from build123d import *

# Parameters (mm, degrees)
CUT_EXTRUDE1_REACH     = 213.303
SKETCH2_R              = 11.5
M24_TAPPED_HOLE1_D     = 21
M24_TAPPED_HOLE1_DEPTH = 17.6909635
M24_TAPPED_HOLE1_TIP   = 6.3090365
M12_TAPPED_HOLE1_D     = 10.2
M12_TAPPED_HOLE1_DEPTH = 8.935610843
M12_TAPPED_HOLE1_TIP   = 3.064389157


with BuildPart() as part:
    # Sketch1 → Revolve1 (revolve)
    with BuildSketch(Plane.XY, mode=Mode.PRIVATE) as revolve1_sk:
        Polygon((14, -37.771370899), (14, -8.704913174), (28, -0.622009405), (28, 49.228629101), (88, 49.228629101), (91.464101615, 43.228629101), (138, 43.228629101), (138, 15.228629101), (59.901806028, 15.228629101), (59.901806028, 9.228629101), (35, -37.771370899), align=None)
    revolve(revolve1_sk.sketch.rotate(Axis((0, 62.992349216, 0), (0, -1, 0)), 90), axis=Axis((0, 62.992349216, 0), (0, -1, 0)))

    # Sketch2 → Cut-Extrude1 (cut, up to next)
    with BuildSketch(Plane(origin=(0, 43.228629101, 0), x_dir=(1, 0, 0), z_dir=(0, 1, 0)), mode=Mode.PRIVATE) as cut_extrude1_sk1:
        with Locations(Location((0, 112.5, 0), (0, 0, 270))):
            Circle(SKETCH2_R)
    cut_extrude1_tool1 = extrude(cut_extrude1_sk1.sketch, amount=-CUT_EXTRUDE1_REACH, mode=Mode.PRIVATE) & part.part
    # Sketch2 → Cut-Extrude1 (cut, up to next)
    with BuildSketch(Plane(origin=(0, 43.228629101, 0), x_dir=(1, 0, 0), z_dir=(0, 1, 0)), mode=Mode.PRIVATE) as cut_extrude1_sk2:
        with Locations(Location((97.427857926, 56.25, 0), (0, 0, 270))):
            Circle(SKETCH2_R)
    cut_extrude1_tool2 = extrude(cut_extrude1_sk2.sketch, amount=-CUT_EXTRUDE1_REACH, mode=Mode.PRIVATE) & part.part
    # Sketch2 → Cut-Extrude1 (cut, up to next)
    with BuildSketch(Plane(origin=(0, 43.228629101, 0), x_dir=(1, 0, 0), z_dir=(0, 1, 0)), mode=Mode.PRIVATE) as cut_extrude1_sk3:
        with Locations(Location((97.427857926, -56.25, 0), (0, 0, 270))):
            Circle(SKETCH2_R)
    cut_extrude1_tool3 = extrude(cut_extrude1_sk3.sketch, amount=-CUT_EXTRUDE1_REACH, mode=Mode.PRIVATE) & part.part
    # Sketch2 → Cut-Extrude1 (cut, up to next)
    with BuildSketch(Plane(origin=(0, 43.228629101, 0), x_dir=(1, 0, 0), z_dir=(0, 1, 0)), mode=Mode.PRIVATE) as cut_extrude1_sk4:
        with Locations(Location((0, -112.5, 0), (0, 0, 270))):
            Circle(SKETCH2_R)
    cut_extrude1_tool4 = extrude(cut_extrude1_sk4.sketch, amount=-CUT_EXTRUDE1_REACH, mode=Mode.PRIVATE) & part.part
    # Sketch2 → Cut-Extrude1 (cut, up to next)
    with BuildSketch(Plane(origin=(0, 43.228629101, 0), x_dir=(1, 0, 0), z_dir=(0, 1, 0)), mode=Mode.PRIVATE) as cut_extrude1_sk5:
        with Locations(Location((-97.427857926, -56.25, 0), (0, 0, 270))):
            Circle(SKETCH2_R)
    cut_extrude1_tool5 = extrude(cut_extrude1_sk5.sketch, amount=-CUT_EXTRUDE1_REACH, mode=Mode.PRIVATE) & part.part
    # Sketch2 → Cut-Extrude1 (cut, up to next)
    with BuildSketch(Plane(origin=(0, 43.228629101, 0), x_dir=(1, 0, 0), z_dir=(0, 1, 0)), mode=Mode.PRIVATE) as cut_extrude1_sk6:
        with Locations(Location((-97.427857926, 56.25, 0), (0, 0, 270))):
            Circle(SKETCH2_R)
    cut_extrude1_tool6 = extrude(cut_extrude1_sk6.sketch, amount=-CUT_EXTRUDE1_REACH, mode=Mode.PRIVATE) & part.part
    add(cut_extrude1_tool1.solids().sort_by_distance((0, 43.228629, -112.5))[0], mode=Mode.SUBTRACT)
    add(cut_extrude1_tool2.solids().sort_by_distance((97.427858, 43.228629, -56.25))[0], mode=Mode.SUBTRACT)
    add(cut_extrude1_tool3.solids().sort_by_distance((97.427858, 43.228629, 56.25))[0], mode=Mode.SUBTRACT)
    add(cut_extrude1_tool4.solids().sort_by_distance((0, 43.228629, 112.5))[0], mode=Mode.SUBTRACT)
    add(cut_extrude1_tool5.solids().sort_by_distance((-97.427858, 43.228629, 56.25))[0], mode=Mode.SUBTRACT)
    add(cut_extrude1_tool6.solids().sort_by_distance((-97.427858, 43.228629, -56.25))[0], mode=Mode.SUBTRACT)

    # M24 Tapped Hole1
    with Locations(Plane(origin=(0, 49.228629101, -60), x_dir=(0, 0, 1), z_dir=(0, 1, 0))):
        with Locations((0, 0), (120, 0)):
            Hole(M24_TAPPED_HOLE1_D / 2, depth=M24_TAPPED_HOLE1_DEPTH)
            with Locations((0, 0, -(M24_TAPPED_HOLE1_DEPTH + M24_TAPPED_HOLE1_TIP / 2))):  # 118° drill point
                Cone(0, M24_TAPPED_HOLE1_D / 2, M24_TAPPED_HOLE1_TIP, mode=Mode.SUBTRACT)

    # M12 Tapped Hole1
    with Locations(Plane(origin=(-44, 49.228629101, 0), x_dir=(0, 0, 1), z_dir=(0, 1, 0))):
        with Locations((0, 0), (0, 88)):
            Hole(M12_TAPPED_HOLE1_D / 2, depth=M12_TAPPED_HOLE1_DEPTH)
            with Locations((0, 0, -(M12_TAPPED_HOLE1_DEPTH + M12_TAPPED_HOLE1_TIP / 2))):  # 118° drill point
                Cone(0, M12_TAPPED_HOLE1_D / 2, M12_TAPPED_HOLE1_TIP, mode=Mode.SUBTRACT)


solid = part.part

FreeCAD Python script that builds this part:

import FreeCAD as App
import Part
import Sketcher
from FreeCAD import Vector
Q = App.Units.Quantity

doc = App.newDocument("Part")
params = doc.addObject("Spreadsheet::Sheet", "Params")
for row, (alias, value) in enumerate([
    ("sketch1_width", "21 mm"),
    ("sketch1_width2", "60 mm"),
    ("sketch1_height", "6 mm"),
    ("sketch1_height2", "28 mm"),
    ("revolution_angle", "360 deg"),
    ("sketch2_diameter", "23 mm"),
    ("sketch3_diameter", "23 mm"),
    ("sketch4_diameter", "23 mm"),
    ("sketch5_diameter", "23 mm"),
    ("sketch6_diameter", "23 mm"),
    ("sketch7_diameter", "23 mm"),
    ("sketch8_diameter", "21 mm"),
    ("hole_diameter", "21 mm"),
    ("hole_depth", "17.690963 mm"),
    ("sketch9_diameter", "10.2 mm"),
    ("hole2_diameter", "10.2 mm"),
    ("hole2_depth", "8.935611 mm"),
], start=1):
    params.set(f"A{row}", alias)
    params.set(f"B{row}", "=" + value)
    params.setAlias(f"B{row}", alias)

body = doc.addObject("PartDesign::Body", "Body")

sketch1 = body.newObject("Sketcher::SketchObject", "Sketch")
sketch1.AttachmentSupport = (doc.getObject("XY_Plane"), [""])
sketch1.MapMode = "FlatFace"
sketch1.addGeometry([
    Part.LineSegment(Vector(14, -9, 0), Vector(14, -38, 0)),
    Part.LineSegment(Vector(14, -38, 0), Vector(35, -38, 0)),
    Part.LineSegment(Vector(35, -38, 0), Vector(60, 9, 0)),
    Part.LineSegment(Vector(60, 9, 0), Vector(60, 15, 0)),
    Part.LineSegment(Vector(60, 15, 0), Vector(138, 15, 0)),
    Part.LineSegment(Vector(138, 15, 0), Vector(138, 43, 0)),
    Part.LineSegment(Vector(138, 43, 0), Vector(91, 43, 0)),
    Part.LineSegment(Vector(91, 43, 0), Vector(88, 49, 0)),
    Part.LineSegment(Vector(88, 49, 0), Vector(28, 49, 0)),
    Part.LineSegment(Vector(28, 49, 0), Vector(28, -1, 0)),
    Part.LineSegment(Vector(28, -1, 0), Vector(14, -9, 0)),
], False)
sketch1.addConstraint([
    Sketcher.Constraint("Coincident", 0, 2, 1, 1),
    Sketcher.Constraint("Coincident", 1, 2, 2, 1),
    Sketcher.Constraint("Coincident", 2, 2, 3, 1),
    Sketcher.Constraint("Coincident", 3, 2, 4, 1),
    Sketcher.Constraint("Coincident", 4, 2, 5, 1),
    Sketcher.Constraint("Coincident", 5, 2, 6, 1),
    Sketcher.Constraint("Coincident", 6, 2, 7, 1),
    Sketcher.Constraint("Coincident", 7, 2, 8, 1),
    Sketcher.Constraint("Coincident", 8, 2, 9, 1),
    Sketcher.Constraint("Coincident", 9, 2, 10, 1),
    Sketcher.Constraint("Coincident", 10, 2, 0, 1),
    Sketcher.Constraint("Vertical", 0),
    Sketcher.Constraint("Horizontal", 1),
    Sketcher.Constraint("Vertical", 3),
    Sketcher.Constraint("Horizontal", 4),
    Sketcher.Constraint("Vertical", 5),
    Sketcher.Constraint("Horizontal", 6),
    Sketcher.Constraint("Horizontal", 8),
    Sketcher.Constraint("Vertical", 9),
    Sketcher.Constraint("Perpendicular", 7, 10),
    Sketcher.Constraint("DistanceX", 1, 1, 1, 2, Q("21 mm")),
    Sketcher.Constraint("DistanceX", 8, 2, 8, 1, Q("60 mm")),
    Sketcher.Constraint("DistanceY", 3, 1, 3, 2, Q("6 mm")),
    Sketcher.Constraint("DistanceY", 5, 1, 5, 2, Q("28 mm")),
    Sketcher.Constraint("Angle", 7, Q("120 deg")),
    Sketcher.Constraint("DistanceX", -1, 1, 0, 2, Q("14 mm")),
    Sketcher.Constraint("DistanceX", -1, 1, 4, 2, Q("138 mm")),
    Sketcher.Constraint("DistanceX", -1, 1, 7, 2, Q("88 mm")),
    Sketcher.Constraint("DistanceY", 1, 2, 2, 2, Q("47 mm")),
    Sketcher.Constraint("DistanceY", 6, 2, 7, 2, Q("6 mm")),
    Sketcher.Constraint("DistanceY", 9, 2, 9, 1, Q("49.850639 mm")),
    Sketcher.Constraint("DistanceX", 4, 1, 4, 2, Q("78.098194 mm")),
    Sketcher.Constraint("DistanceY", 0, 2, -1, 1, Q("37.771371 mm")),
])
sketch1.setExpression("Constraints[20]", "Params.sketch1_width")
sketch1.setExpression("Constraints[21]", "Params.sketch1_width2")
sketch1.setExpression("Constraints[22]", "Params.sketch1_height")
sketch1.setExpression("Constraints[23]", "Params.sketch1_height2")
revolution = body.newObject("PartDesign::Revolution", "Revolution")
revolution.Profile = sketch1
revolution.ReferenceAxis = (sketch1, ["V_Axis"])
revolution.setExpression("Angle", "Params.revolution_angle")

sketch2 = body.newObject("Sketcher::SketchObject", "Sketch001")
sketch2.AttachmentSupport = (doc.getObject("XZ_Plane"), [""])
sketch2.MapMode = "FlatFace"
sketch2.AttachmentOffset = App.Placement(Vector(0, 0, -43.228629), App.Rotation())
sketch2.addGeometry(Part.Circle(Vector(0, -112, 0), Vector(0, 0, 1), 12), False)
sketch2.addConstraint([
    Sketcher.Constraint("PointOnObject", 0, 3, -2),
    Sketcher.Constraint("Diameter", 0, Q("23 mm")),
    Sketcher.Constraint("DistanceY", 0, 3, -1, 1, Q("112.5 mm")),
])
sketch2.setExpression("Constraints[1]", "Params.sketch2_diameter")
pocket1 = body.newObject("PartDesign::Pocket", "Pocket")
pocket1.Profile = sketch2
pocket1.Type = "UpToFirst"
pocket1.Reversed = True

sketch3 = body.newObject("Sketcher::SketchObject", "Sketch002")
sketch3.AttachmentSupport = (doc.getObject("XZ_Plane"), [""])
sketch3.MapMode = "FlatFace"
sketch3.AttachmentOffset = App.Placement(Vector(0, 0, -43.228629), App.Rotation())
sketch3.addGeometry(Part.Circle(Vector(97, -56, 0), Vector(0, 0, 1), 12), False)
sketch3.addConstraint([
    Sketcher.Constraint("Diameter", 0, Q("23 mm")),
    Sketcher.Constraint("DistanceY", 0, 3, -1, 1, Q("56.25 mm")),
    Sketcher.Constraint("DistanceX", -1, 1, 0, 3, Q("97.427858 mm")),
])
sketch3.setExpression("Constraints[0]", "Params.sketch3_diameter")
pocket2 = body.newObject("PartDesign::Pocket", "Pocket001")
pocket2.Profile = sketch3
pocket2.Type = "UpToFirst"
pocket2.Reversed = True

sketch4 = body.newObject("Sketcher::SketchObject", "Sketch003")
sketch4.AttachmentSupport = (doc.getObject("XZ_Plane"), [""])
sketch4.MapMode = "FlatFace"
sketch4.AttachmentOffset = App.Placement(Vector(0, 0, -43.228629), App.Rotation())
sketch4.addGeometry(Part.Circle(Vector(97, 56, 0), Vector(0, 0, 1), 12), False)
sketch4.addConstraint([
    Sketcher.Constraint("Diameter", 0, Q("23 mm")),
    Sketcher.Constraint("DistanceY", -1, 1, 0, 3, Q("56.25 mm")),
    Sketcher.Constraint("DistanceX", -1, 1, 0, 3, Q("97.427858 mm")),
])
sketch4.setExpression("Constraints[0]", "Params.sketch4_diameter")
pocket3 = body.newObject("PartDesign::Pocket", "Pocket002")
pocket3.Profile = sketch4
pocket3.Type = "UpToFirst"
pocket3.Reversed = True

sketch5 = body.newObject("Sketcher::SketchObject", "Sketch004")
sketch5.AttachmentSupport = (doc.getObject("XZ_Plane"), [""])
sketch5.MapMode = "FlatFace"
sketch5.AttachmentOffset = App.Placement(Vector(0, 0, -43.228629), App.Rotation())
sketch5.addGeometry(Part.Circle(Vector(0, 112, 0), Vector(0, 0, 1), 12), False)
sketch5.addConstraint([
    Sketcher.Constraint("PointOnObject", 0, 3, -2),
    Sketcher.Constraint("Diameter", 0, Q("23 mm")),
    Sketcher.Constraint("DistanceY", -1, 1, 0, 3, Q("112.5 mm")),
])
sketch5.setExpression("Constraints[1]", "Params.sketch5_diameter")
pocket4 = body.newObject("PartDesign::Pocket", "Pocket003")
pocket4.Profile = sketch5
pocket4.Type = "UpToFirst"
pocket4.Reversed = True

sketch6 = body.newObject("Sketcher::SketchObject", "Sketch005")
sketch6.AttachmentSupport = (doc.getObject("XZ_Plane"), [""])
sketch6.MapMode = "FlatFace"
sketch6.AttachmentOffset = App.Placement(Vector(0, 0, -43.228629), App.Rotation())
sketch6.addGeometry(Part.Circle(Vector(-97, 56, 0), Vector(0, 0, 1), 12), False)
sketch6.addConstraint([
    Sketcher.Constraint("Diameter", 0, Q("23 mm")),
    Sketcher.Constraint("DistanceY", -1, 1, 0, 3, Q("56.25 mm")),
    Sketcher.Constraint("DistanceX", 0, 3, -1, 1, Q("97.427858 mm")),
])
sketch6.setExpression("Constraints[0]", "Params.sketch6_diameter")
pocket5 = body.newObject("PartDesign::Pocket", "Pocket004")
pocket5.Profile = sketch6
pocket5.Type = "UpToFirst"
pocket5.Reversed = True

sketch7 = body.newObject("Sketcher::SketchObject", "Sketch006")
sketch7.AttachmentSupport = (doc.getObject("XZ_Plane"), [""])
sketch7.MapMode = "FlatFace"
sketch7.AttachmentOffset = App.Placement(Vector(0, 0, -43.228629), App.Rotation())
sketch7.addGeometry(Part.Circle(Vector(-97, -56, 0), Vector(0, 0, 1), 12), False)
sketch7.addConstraint([
    Sketcher.Constraint("Diameter", 0, Q("23 mm")),
    Sketcher.Constraint("DistanceY", 0, 3, -1, 1, Q("56.25 mm")),
    Sketcher.Constraint("DistanceX", 0, 3, -1, 1, Q("97.427858 mm")),
])
sketch7.setExpression("Constraints[0]", "Params.sketch7_diameter")
pocket6 = body.newObject("PartDesign::Pocket", "Pocket005")
pocket6.Profile = sketch7
pocket6.Type = "UpToFirst"
pocket6.Reversed = True

sketch8 = body.newObject("Sketcher::SketchObject", "Sketch007")
sketch8.AttachmentSupport = (doc.getObject("XZ_Plane"), [""])
sketch8.MapMode = "FlatFace"
sketch8.AttachmentOffset = App.Placement(Vector(0, 0, -49.228629), App.Rotation())
sketch8.addGeometry([
    Part.Circle(Vector(0, -60, 0), Vector(0, 0, 1), 10),
    Part.Circle(Vector(0, 60, 0), Vector(0, 0, 1), 10),
], False)
sketch8.addConstraint([
    Sketcher.Constraint("Equal", 0, 1),
    Sketcher.Constraint("Symmetric", 0, 3, 1, 3, -1, 1),
    Sketcher.Constraint("PointOnObject", 0, 3, -2),
    Sketcher.Constraint("Diameter", 0, Q("21 mm")),
    Sketcher.Constraint("DistanceY", 0, 3, -1, 1, Q("60 mm")),
])
sketch8.setExpression("Constraints[3]", "Params.sketch8_diameter")
doc.recompute()
hole = body.newObject("PartDesign::Hole", "Hole")
hole.Profile = sketch8
hole.ThreadType = "None"
hole.setExpression("Diameter", "Params.hole_diameter")
hole.DepthType = "Dimension"
hole.setExpression("Depth", "Params.hole_depth")
hole.DrillPoint = "Angled"
hole.DrillPointAngle = 118
hole.Reversed = True

sketch9 = body.newObject("Sketcher::SketchObject", "Sketch008")
sketch9.AttachmentSupport = (doc.getObject("XZ_Plane"), [""])
sketch9.MapMode = "FlatFace"
sketch9.AttachmentOffset = App.Placement(Vector(0, 0, -49.228629), App.Rotation())
sketch9.addGeometry([
    Part.Circle(Vector(-44, 0, 0), Vector(0, 0, 1), 5),
    Part.Circle(Vector(44, 0, 0), Vector(0, 0, 1), 5),
], False)
sketch9.addConstraint([
    Sketcher.Constraint("Equal", 0, 1),
    Sketcher.Constraint("Symmetric", 0, 3, 1, 3, -1, 1),
    Sketcher.Constraint("PointOnObject", 0, 3, -1),
    Sketcher.Constraint("Diameter", 0, Q("10.2 mm")),
    Sketcher.Constraint("DistanceX", 0, 3, -1, 1, Q("44 mm")),
])
sketch9.setExpression("Constraints[3]", "Params.sketch9_diameter")
doc.recompute()
hole2 = body.newObject("PartDesign::Hole", "Hole001")
hole2.Profile = sketch9
hole2.ThreadType = "None"
hole2.setExpression("Diameter", "Params.hole2_diameter")
hole2.DepthType = "Dimension"
hole2.setExpression("Depth", "Params.hole2_depth")
hole2.DrillPoint = "Angled"
hole2.DrillPointAngle = 118
hole2.Reversed = True

doc.recompute()
